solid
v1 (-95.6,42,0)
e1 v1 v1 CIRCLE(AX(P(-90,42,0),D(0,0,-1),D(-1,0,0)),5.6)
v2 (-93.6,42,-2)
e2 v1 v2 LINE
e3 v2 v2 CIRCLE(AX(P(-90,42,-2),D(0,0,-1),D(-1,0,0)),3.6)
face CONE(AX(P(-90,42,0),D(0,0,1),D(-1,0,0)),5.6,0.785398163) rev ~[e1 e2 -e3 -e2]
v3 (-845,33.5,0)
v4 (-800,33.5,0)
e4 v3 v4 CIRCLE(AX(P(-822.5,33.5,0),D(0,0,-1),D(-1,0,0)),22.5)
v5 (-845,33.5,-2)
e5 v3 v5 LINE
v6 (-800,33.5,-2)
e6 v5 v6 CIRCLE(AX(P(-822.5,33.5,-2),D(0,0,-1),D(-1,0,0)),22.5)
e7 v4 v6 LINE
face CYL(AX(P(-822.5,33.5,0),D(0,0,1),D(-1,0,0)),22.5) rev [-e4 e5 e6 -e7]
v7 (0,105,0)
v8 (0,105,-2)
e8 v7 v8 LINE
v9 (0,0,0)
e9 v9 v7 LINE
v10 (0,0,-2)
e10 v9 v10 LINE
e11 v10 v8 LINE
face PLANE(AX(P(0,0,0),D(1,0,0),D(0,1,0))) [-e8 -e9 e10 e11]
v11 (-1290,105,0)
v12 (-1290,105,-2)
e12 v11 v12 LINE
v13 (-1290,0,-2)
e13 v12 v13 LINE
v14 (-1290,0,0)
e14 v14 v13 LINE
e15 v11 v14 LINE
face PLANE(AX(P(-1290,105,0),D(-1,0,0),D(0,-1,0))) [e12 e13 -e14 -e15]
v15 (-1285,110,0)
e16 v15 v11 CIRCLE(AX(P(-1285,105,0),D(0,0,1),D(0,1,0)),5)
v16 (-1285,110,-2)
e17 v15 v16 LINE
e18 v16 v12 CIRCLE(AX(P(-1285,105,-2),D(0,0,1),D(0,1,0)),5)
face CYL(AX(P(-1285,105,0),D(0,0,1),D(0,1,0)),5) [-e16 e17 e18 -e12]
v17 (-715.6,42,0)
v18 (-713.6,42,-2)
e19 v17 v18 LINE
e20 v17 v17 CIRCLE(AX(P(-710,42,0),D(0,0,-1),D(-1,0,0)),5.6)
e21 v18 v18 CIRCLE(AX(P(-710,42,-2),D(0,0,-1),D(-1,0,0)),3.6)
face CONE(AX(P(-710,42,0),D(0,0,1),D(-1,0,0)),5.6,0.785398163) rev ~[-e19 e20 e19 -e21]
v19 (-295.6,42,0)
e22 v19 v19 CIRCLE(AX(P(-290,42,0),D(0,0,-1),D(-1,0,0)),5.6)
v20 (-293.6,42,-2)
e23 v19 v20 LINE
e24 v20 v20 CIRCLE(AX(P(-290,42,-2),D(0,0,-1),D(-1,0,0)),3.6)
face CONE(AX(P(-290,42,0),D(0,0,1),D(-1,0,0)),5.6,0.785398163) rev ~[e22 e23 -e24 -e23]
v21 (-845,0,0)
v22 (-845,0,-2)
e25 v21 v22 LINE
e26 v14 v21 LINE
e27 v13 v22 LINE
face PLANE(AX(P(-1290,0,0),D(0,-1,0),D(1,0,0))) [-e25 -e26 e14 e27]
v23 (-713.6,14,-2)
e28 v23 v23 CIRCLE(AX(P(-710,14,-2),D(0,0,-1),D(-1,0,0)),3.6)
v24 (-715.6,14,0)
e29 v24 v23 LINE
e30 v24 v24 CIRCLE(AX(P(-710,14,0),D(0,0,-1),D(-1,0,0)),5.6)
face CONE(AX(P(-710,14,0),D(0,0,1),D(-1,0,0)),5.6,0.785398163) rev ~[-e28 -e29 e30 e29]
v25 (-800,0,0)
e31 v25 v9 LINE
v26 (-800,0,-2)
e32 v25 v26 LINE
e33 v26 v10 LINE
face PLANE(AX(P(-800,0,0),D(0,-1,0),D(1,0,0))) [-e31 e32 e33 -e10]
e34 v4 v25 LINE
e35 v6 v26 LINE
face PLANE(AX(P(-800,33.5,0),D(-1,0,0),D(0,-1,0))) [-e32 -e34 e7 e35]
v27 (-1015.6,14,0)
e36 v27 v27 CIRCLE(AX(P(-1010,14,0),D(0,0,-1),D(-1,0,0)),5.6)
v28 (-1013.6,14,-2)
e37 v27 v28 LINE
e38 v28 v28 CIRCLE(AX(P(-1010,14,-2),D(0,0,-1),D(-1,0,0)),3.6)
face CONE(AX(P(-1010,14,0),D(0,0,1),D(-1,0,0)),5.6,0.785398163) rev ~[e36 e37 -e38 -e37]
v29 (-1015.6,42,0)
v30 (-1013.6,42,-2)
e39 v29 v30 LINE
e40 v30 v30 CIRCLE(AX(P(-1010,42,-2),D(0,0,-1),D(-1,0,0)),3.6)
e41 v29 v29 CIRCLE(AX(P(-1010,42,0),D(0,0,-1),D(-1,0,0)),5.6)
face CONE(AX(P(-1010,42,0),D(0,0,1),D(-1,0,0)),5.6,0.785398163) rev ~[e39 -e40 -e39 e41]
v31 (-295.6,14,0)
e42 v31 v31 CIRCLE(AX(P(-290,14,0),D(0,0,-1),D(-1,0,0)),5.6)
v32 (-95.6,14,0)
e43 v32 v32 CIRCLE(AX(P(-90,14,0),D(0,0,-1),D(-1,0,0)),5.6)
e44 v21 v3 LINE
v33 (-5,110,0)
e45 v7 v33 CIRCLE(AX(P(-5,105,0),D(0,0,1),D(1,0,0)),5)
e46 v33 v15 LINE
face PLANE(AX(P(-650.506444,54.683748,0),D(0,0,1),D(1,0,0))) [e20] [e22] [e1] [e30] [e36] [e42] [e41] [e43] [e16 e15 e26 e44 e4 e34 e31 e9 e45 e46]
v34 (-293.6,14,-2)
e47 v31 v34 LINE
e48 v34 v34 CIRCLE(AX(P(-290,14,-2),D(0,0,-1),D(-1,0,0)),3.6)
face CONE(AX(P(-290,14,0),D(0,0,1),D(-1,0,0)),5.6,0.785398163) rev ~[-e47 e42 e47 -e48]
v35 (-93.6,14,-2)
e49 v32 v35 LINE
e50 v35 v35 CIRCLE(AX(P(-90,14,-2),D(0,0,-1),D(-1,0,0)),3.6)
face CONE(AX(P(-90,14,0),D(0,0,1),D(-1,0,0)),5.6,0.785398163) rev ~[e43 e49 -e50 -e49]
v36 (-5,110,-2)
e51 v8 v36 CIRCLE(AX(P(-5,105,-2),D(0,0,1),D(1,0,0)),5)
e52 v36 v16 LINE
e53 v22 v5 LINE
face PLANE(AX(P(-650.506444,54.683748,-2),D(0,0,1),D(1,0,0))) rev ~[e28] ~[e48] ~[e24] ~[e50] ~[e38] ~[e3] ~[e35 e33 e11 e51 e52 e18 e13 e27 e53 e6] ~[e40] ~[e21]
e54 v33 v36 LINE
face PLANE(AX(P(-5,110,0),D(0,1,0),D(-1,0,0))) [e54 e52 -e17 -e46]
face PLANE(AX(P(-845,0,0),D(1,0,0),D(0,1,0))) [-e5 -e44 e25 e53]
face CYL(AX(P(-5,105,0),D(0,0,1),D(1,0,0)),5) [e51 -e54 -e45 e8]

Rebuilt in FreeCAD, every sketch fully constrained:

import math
import FreeCAD as App
import Part
import Sketcher

V = App.Vector
Q = App.Units.Quantity

doc = App.newDocument("Part")
params = doc.addObject("Spreadsheet::Sheet", "Params")
for row, (alias, value) in enumerate([
    ("sketch1_radius", "5 mm"),
    ("sketch1_radius2", "22.5 mm"),
    ("sketch1_width", "800 mm"),
    ("sketch1_width2", "1280 mm"),
    ("sketch1_height", "105 mm"),
    ("pad1_length", "2 mm"),
    ("sketch2_diameter", "5.5 mm"),
    ("hole_diameter", "5.5 mm"),
    ("hole_csink_diameter", "11.2 mm"),
], start=1):
    params.set(f"A{row}", alias)
    params.set(f"B{row}", "=" + value)
    params.setAlias(f"B{row}", alias)

body = doc.addObject("PartDesign::Body", "Body")

# Sketch on XY plane
sketch1 = body.newObject("Sketcher::SketchObject", "Sketch")
sketch1.AttachmentSupport = (doc.getObject("XY_Plane"), [""])
sketch1.MapMode = "FlatFace"
sketch1.addGeometry([
    Part.LineSegment(V(-800, 0, 0), V(0, 0, 0)),  # 0
    Part.LineSegment(V(0, 0, 0), V(0, 105, 0)),  # 1
    Part.ArcOfCircle(Part.Circle(V(-5, 105, 0), V(0, 0, 1), 5), math.radians(0), math.radians(90)),  # 2
    Part.LineSegment(V(-5, 110, 0), V(-1285, 110, 0)),  # 3
    Part.ArcOfCircle(Part.Circle(V(-1285, 105, 0), V(0, 0, 1), 5), math.radians(90), math.radians(180)),  # 4
    Part.LineSegment(V(-1290, 105, 0), V(-1290, 0, 0)),  # 5
    Part.LineSegment(V(-1290, 0, 0), V(-845, 0, 0)),  # 6
    Part.LineSegment(V(-845, 0, 0), V(-845, 34, 0)),  # 7
    Part.ArcOfCircle(Part.Circle(V(-822, 34, 0), V(0, 0, 1), 22), math.radians(0), math.radians(180)),  # 8
    Part.LineSegment(V(-800, 34, 0), V(-800, 0, 0)),  # 9
], False)
sketch1.addConstraint([
    Sketcher.Constraint("Coincident", 0, 2, 1, 1),
    Sketcher.Constraint("Tangent", 1, 2, 2, 1),
    Sketcher.Constraint("Tangent", 2, 2, 3, 1),
    Sketcher.Constraint("Tangent", 3, 2, 4, 1),
    Sketcher.Constraint("Tangent", 4, 2, 5, 1),
    Sketcher.Constraint("Coincident", 5, 2, 6, 1),
    Sketcher.Constraint("Coincident", 6, 2, 7, 1),
    Sketcher.Constraint("Tangent", 7, 2, 8, 2),
    Sketcher.Constraint("Tangent", 8, 1, 9, 1),
    Sketcher.Constraint("Coincident", 9, 2, 0, 1),
    Sketcher.Constraint("Horizontal", 0),
    Sketcher.Constraint("Vertical", 1),
    Sketcher.Constraint("Horizontal", 3),
    Sketcher.Constraint("Vertical", 5),
    Sketcher.Constraint("Horizontal", 6),
    Sketcher.Constraint("Vertical", 7),
    Sketcher.Constraint("Vertical", 9),
    Sketcher.Constraint("Coincident", 0, 2, -1, 1),
    Sketcher.Constraint("Equal", 2, 4),
    Sketcher.Constraint("PointOnObject", 5, 2, -1),
    Sketcher.Constraint("Radius", 2, Q("5 mm")),
    Sketcher.Constraint("Radius", 8, Q("22.5 mm")),
    Sketcher.Constraint("DistanceX", 0, 1, 0, 2, Q("800 mm")),
    Sketcher.Constraint("DistanceX", 3, 2, 3, 1, Q("1280 mm")),
    Sketcher.Constraint("DistanceY", 1, 1, 1, 2, Q("105 mm")),
    Sketcher.Constraint("DistanceY", 7, 1, 7, 2, Q("33.5 mm")),
])
sketch1.setExpression("Constraints[20]", "Params.sketch1_radius")
sketch1.setExpression("Constraints[21]", "Params.sketch1_radius2")
sketch1.setExpression("Constraints[22]", "Params.sketch1_width")
sketch1.setExpression("Constraints[23]", "Params.sketch1_width2")
sketch1.setExpression("Constraints[24]", "Params.sketch1_height")
pad1 = body.newObject("PartDesign::Pad", "Pad")
pad1.Profile = sketch1
pad1.setExpression("Length", "Params.pad1_length")
pad1.Reversed = True

# Sketch on XY plane
sketch2 = body.newObject("Sketcher::SketchObject", "Sketch001")
sketch2.AttachmentSupport = (doc.getObject("XY_Plane"), [""])
sketch2.MapMode = "FlatFace"
sketch2.addGeometry([
    Part.Circle(V(-1010, 42, 0), V(0, 0, 1), 2.8),  # 0
    Part.Circle(V(-1010, 14, 0), V(0, 0, 1), 2.8),  # 1
    Part.Circle(V(-710, 42, 0), V(0, 0, 1), 2.8),  # 2
    Part.Circle(V(-710, 14, 0), V(0, 0, 1), 2.8),  # 3
    Part.Circle(V(-290, 42, 0), V(0, 0, 1), 2.8),  # 4
    Part.Circle(V(-290, 14, 0), V(0, 0, 1), 2.8),  # 5
    Part.Circle(V(-90, 42, 0), V(0, 0, 1), 2.8),  # 6
    Part.Circle(V(-90, 14, 0), V(0, 0, 1), 2.8),  # 7
], False)
sketch2.addConstraint([
    Sketcher.Constraint("Equal", 0, 1),
    Sketcher.Constraint("Equal", 1, 2),
    Sketcher.Constraint("Equal", 2, 3),
    Sketcher.Constraint("Equal", 3, 4),
    Sketcher.Constraint("Equal", 4, 5),
    Sketcher.Constraint("Equal", 5, 6),
    Sketcher.Constraint("Equal", 6, 7),
    Sketcher.Constraint("Horizontal", 0, 3, 2, 3),
    Sketcher.Constraint("Horizontal", 1, 3, 3, 3),
    Sketcher.Constraint("Horizontal", 2, 3, 4, 3),
    Sketcher.Constraint("Horizontal", 3, 3, 5, 3),
    Sketcher.Constraint("Horizontal", 4, 3, 6, 3),
    Sketcher.Constraint("Horizontal", 5, 3, 7, 3),
    Sketcher.Constraint("Vertical", 0, 3, 1, 3),
    Sketcher.Constraint("Vertical", 2, 3, 3, 3),
    Sketcher.Constraint("Vertical", 4, 3, 5, 3),
    Sketcher.Constraint("Vertical", 6, 3, 7, 3),
    Sketcher.Constraint("Diameter", 0, Q("5.5 mm")),
    Sketcher.Constraint("DistanceX", 0, 3, -1, 1, Q("1010 mm")),
    Sketcher.Constraint("DistanceY", -1, 1, 0, 3, Q("42 mm")),
    Sketcher.Constraint("DistanceY", -1, 1, 1, 3, Q("14 mm")),
    Sketcher.Constraint("DistanceX", 2, 3, -1, 1, Q("710 mm")),
    Sketcher.Constraint("DistanceX", 4, 3, -1, 1, Q("290 mm")),
    Sketcher.Constraint("DistanceX", 6, 3, -1, 1, Q("90 mm")),
])
sketch2.setExpression("Constraints[17]", "Params.sketch2_diameter")
doc.recompute()
hole = body.newObject("PartDesign::Hole", "Hole")
hole.Profile = sketch2
hole.ThreadType = "None"
hole.setExpression("Diameter", "Params.hole_diameter")
hole.DepthType = "ThroughAll"
hole.HoleCutType = "Countersink"
hole.setExpression("HoleCutDiameter", "Params.hole_csink_diameter")
hole.HoleCutCountersinkAngle = 90

doc.recompute()
